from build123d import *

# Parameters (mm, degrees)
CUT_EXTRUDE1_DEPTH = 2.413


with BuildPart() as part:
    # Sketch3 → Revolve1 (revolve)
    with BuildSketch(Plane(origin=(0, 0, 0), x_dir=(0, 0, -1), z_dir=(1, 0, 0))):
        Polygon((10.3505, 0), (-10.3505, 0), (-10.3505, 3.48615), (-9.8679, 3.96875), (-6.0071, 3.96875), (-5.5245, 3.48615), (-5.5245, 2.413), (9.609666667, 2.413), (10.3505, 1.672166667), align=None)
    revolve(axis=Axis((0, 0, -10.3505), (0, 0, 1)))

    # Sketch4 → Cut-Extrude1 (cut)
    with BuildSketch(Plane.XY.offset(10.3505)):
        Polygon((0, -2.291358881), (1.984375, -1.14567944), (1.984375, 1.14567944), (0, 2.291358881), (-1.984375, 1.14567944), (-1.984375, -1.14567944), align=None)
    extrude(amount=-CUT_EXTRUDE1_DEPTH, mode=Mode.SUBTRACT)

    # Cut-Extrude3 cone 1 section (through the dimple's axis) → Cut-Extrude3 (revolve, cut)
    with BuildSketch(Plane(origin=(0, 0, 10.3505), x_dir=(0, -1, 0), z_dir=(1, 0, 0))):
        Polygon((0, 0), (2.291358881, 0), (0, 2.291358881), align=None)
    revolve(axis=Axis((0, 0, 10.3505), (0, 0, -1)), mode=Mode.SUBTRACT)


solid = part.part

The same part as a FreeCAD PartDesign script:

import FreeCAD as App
import Part
import Sketcher

V = App.Vector
Q = App.Units.Quantity

doc = App.newDocument("Part")
body = doc.addObject("PartDesign::Body", "Body")

sketch1 = body.newObject("Sketcher::SketchObject", "Sketch")
sketch1.AttachmentSupport = (doc.getObject("YZ_Plane"), [""])
sketch1.MapMode = "FlatFace"
sketch1.addGeometry([
    Part.LineSegment(V(0, 10.4, 0), V(0, -10.4, 0)),
    Part.LineSegment(V(0, -10.4, 0), V(1.7, -10.4, 0)),
    Part.LineSegment(V(1.7, -10.4, 0), V(2.4, -9.6, 0)),
    Part.LineSegment(V(2.4, -9.6, 0), V(2.4, 5.5, 0)),
    Part.LineSegment(V(2.4, 5.5, 0), V(3.5, 5.5, 0)),
    Part.LineSegment(V(3.5, 5.5, 0), V(4, 6, 0)),
    Part.LineSegment(V(4, 6, 0), V(4, 9.9, 0)),
    Part.LineSegment(V(4, 9.9, 0), V(3.5, 10.4, 0)),
    Part.LineSegment(V(3.5, 10.4, 0), V(0, 10.4, 0)),
], False)
sketch1.addConstraint([
    Sketcher.Constraint("Coincident", 0, 2, 1, 1),
    Sketcher.Constraint("Coincident", 1, 2, 2, 1),
    Sketcher.Constraint("Coincident", 2, 2, 3, 1),
    Sketcher.Constraint("Coincident", 3, 2, 4, 1),
    Sketcher.Constraint("Coincident", 4, 2, 5, 1),
    Sketcher.Constraint("Coincident", 5, 2, 6, 1),
    Sketcher.Constraint("Coincident", 6, 2, 7, 1),
    Sketcher.Constraint("Coincident", 7, 2, 8, 1),
    Sketcher.Constraint("Coincident", 8, 2, 0, 1),
    Sketcher.Constraint("Vertical", 0),
    Sketcher.Constraint("Horizontal", 1),
    Sketcher.Constraint("Vertical", 3),
    Sketcher.Constraint("Horizontal", 4),
    Sketcher.Constraint("Vertical", 6),
    Sketcher.Constraint("Horizontal", 8),
    Sketcher.Constraint("Symmetric", 0, 2, 8, 2, -1, 1),
    Sketcher.Constraint("Parallel", 2, 5),
    Sketcher.Constraint("Perpendicular", 5, 7),
    Sketcher.Constraint("Vertical", 4, 2, 7, 2),
    Sketcher.Constraint("Equal", 5, 7),
    Sketcher.Constraint("DistanceY", 0, 2, 0, 1, Q("0.815 in")),
    Sketcher.Constraint("DistanceY", 6, 1, 6, 2, Q("0.152 in")),
    Sketcher.Constraint("DistanceY", 4, 2, 7, 2, Q("0.19 in")),
    Sketcher.Constraint("DistanceX", -1, 1, 2, 2, Q("0.095 in")),
    Sketcher.Constraint("DistanceX", -1, 1, 5, 2, Q("0.15625 in")),
    Sketcher.Constraint("DistanceX", 1, 1, 1, 2, 1.672167),
])
revolution = body.newObject("PartDesign::Revolution", "Revolution")
revolution.Profile = sketch1
revolution.ReferenceAxis = (sketch1, ["V_Axis"])
revolution.Angle = 360

sketch2 = body.newObject("Sketcher::SketchObject", "Sketch001")
sketch2.AttachmentSupport = (doc.getObject("XY_Plane"), [""])
sketch2.MapMode = "FlatFace"
sketch2.AttachmentOffset = App.Placement(V(0, 0, 0.4075 * 25.4), App.Rotation())
sketch2.addGeometry([
    Part.LineSegment(V(0, -2.3, 0), V(2, -1.1, 0)),
    Part.LineSegment(V(2, -1.1, 0), V(2, 1.1, 0)),
    Part.LineSegment(V(2, 1.1, 0), V(0, 2.3, 0)),
    Part.LineSegment(V(0, 2.3, 0), V(-2, 1.1, 0)),
    Part.LineSegment(V(-2, 1.1, 0), V(-2, -1.1, 0)),
    Part.LineSegment(V(-2, -1.1, 0), V(0, -2.3, 0)),
], False)
sketch2.addConstraint([
    Sketcher.Constraint("Coincident", 0, 2, 1, 1),
    Sketcher.Constraint("Coincident", 1, 2, 2, 1),
    Sketcher.Constraint("Coincident", 2, 2, 3, 1),
    Sketcher.Constraint("Coincident", 3, 2, 4, 1),
    Sketcher.Constraint("Coincident", 4, 2, 5, 1),
    Sketcher.Constraint("Coincident", 5, 2, 0, 1),
    Sketcher.Constraint("Vertical", 1),
    Sketcher.Constraint("Vertical", 4),
    Sketcher.Constraint("Symmetric", 0, 2, 3, 2, -1, 1),
    Sketcher.Constraint("Symmetric", 2, 2, 5, 2, -1, 1),
    Sketcher.Constraint("PointOnObject", 2, 2, -2),
    Sketcher.Constraint("Parallel", 2, 5),
    Sketcher.Constraint("Horizontal", 1, 2, 3, 2),
    Sketcher.Constraint("Angle", 0, Q("30 deg")),
    Sketcher.Constraint("DistanceX", -1, 1, 0, 2, Q("0.078125 in")),
    Sketcher.Constraint("DistanceY", 1, 1, 1, 2, 2.291359),
])
pocket1 = body.newObject("PartDesign::Pocket", "Pocket")
pocket1.Profile = sketch2
pocket1.Length = Q("0.095 in")

sketch3 = body.newObject("Sketcher::SketchObject", "Sketch002")
sketch3.AttachmentSupport = (doc.getObject("YZ_Plane"), [""])
sketch3.MapMode = "FlatFace"
sketch3.addGeometry([
    Part.LineSegment(V(0, 10.4, 0), V(-2.3, 10.4, 0)),
    Part.LineSegment(V(-2.3, 10.4, 0), V(0, 8.1, 0)),
    Part.LineSegment(V(0, 8.1, 0), V(0, 10.4, 0)),
], False)
sketch3.addConstraint([
    Sketcher.Constraint("Coincident", 0, 2, 1, 1),
    Sketcher.Constraint("Coincident", 1, 2, 2, 1),
    Sketcher.Constraint("Coincident", 2, 2, 0, 1),
    Sketcher.Constraint("Horizontal", 0),
    Sketcher.Constraint("Vertical", 2),
    Sketcher.Constraint("PointOnObject", 1, 2, -2),
    Sketcher.Constraint("Equal", 0, 2),
    Sketcher.Constraint("DistanceY", -1, 1, 0, 2, Q("0.4075 in")),
    Sketcher.Constraint("DistanceX", 0, 2, 0, 1, 2.291359),
])
groove = body.newObject("PartDesign::Groove", "Groove")
groove.Profile = sketch3
groove.ReferenceAxis = (sketch3, ["V_Axis"])
groove.Angle = 360

doc.recompute()
